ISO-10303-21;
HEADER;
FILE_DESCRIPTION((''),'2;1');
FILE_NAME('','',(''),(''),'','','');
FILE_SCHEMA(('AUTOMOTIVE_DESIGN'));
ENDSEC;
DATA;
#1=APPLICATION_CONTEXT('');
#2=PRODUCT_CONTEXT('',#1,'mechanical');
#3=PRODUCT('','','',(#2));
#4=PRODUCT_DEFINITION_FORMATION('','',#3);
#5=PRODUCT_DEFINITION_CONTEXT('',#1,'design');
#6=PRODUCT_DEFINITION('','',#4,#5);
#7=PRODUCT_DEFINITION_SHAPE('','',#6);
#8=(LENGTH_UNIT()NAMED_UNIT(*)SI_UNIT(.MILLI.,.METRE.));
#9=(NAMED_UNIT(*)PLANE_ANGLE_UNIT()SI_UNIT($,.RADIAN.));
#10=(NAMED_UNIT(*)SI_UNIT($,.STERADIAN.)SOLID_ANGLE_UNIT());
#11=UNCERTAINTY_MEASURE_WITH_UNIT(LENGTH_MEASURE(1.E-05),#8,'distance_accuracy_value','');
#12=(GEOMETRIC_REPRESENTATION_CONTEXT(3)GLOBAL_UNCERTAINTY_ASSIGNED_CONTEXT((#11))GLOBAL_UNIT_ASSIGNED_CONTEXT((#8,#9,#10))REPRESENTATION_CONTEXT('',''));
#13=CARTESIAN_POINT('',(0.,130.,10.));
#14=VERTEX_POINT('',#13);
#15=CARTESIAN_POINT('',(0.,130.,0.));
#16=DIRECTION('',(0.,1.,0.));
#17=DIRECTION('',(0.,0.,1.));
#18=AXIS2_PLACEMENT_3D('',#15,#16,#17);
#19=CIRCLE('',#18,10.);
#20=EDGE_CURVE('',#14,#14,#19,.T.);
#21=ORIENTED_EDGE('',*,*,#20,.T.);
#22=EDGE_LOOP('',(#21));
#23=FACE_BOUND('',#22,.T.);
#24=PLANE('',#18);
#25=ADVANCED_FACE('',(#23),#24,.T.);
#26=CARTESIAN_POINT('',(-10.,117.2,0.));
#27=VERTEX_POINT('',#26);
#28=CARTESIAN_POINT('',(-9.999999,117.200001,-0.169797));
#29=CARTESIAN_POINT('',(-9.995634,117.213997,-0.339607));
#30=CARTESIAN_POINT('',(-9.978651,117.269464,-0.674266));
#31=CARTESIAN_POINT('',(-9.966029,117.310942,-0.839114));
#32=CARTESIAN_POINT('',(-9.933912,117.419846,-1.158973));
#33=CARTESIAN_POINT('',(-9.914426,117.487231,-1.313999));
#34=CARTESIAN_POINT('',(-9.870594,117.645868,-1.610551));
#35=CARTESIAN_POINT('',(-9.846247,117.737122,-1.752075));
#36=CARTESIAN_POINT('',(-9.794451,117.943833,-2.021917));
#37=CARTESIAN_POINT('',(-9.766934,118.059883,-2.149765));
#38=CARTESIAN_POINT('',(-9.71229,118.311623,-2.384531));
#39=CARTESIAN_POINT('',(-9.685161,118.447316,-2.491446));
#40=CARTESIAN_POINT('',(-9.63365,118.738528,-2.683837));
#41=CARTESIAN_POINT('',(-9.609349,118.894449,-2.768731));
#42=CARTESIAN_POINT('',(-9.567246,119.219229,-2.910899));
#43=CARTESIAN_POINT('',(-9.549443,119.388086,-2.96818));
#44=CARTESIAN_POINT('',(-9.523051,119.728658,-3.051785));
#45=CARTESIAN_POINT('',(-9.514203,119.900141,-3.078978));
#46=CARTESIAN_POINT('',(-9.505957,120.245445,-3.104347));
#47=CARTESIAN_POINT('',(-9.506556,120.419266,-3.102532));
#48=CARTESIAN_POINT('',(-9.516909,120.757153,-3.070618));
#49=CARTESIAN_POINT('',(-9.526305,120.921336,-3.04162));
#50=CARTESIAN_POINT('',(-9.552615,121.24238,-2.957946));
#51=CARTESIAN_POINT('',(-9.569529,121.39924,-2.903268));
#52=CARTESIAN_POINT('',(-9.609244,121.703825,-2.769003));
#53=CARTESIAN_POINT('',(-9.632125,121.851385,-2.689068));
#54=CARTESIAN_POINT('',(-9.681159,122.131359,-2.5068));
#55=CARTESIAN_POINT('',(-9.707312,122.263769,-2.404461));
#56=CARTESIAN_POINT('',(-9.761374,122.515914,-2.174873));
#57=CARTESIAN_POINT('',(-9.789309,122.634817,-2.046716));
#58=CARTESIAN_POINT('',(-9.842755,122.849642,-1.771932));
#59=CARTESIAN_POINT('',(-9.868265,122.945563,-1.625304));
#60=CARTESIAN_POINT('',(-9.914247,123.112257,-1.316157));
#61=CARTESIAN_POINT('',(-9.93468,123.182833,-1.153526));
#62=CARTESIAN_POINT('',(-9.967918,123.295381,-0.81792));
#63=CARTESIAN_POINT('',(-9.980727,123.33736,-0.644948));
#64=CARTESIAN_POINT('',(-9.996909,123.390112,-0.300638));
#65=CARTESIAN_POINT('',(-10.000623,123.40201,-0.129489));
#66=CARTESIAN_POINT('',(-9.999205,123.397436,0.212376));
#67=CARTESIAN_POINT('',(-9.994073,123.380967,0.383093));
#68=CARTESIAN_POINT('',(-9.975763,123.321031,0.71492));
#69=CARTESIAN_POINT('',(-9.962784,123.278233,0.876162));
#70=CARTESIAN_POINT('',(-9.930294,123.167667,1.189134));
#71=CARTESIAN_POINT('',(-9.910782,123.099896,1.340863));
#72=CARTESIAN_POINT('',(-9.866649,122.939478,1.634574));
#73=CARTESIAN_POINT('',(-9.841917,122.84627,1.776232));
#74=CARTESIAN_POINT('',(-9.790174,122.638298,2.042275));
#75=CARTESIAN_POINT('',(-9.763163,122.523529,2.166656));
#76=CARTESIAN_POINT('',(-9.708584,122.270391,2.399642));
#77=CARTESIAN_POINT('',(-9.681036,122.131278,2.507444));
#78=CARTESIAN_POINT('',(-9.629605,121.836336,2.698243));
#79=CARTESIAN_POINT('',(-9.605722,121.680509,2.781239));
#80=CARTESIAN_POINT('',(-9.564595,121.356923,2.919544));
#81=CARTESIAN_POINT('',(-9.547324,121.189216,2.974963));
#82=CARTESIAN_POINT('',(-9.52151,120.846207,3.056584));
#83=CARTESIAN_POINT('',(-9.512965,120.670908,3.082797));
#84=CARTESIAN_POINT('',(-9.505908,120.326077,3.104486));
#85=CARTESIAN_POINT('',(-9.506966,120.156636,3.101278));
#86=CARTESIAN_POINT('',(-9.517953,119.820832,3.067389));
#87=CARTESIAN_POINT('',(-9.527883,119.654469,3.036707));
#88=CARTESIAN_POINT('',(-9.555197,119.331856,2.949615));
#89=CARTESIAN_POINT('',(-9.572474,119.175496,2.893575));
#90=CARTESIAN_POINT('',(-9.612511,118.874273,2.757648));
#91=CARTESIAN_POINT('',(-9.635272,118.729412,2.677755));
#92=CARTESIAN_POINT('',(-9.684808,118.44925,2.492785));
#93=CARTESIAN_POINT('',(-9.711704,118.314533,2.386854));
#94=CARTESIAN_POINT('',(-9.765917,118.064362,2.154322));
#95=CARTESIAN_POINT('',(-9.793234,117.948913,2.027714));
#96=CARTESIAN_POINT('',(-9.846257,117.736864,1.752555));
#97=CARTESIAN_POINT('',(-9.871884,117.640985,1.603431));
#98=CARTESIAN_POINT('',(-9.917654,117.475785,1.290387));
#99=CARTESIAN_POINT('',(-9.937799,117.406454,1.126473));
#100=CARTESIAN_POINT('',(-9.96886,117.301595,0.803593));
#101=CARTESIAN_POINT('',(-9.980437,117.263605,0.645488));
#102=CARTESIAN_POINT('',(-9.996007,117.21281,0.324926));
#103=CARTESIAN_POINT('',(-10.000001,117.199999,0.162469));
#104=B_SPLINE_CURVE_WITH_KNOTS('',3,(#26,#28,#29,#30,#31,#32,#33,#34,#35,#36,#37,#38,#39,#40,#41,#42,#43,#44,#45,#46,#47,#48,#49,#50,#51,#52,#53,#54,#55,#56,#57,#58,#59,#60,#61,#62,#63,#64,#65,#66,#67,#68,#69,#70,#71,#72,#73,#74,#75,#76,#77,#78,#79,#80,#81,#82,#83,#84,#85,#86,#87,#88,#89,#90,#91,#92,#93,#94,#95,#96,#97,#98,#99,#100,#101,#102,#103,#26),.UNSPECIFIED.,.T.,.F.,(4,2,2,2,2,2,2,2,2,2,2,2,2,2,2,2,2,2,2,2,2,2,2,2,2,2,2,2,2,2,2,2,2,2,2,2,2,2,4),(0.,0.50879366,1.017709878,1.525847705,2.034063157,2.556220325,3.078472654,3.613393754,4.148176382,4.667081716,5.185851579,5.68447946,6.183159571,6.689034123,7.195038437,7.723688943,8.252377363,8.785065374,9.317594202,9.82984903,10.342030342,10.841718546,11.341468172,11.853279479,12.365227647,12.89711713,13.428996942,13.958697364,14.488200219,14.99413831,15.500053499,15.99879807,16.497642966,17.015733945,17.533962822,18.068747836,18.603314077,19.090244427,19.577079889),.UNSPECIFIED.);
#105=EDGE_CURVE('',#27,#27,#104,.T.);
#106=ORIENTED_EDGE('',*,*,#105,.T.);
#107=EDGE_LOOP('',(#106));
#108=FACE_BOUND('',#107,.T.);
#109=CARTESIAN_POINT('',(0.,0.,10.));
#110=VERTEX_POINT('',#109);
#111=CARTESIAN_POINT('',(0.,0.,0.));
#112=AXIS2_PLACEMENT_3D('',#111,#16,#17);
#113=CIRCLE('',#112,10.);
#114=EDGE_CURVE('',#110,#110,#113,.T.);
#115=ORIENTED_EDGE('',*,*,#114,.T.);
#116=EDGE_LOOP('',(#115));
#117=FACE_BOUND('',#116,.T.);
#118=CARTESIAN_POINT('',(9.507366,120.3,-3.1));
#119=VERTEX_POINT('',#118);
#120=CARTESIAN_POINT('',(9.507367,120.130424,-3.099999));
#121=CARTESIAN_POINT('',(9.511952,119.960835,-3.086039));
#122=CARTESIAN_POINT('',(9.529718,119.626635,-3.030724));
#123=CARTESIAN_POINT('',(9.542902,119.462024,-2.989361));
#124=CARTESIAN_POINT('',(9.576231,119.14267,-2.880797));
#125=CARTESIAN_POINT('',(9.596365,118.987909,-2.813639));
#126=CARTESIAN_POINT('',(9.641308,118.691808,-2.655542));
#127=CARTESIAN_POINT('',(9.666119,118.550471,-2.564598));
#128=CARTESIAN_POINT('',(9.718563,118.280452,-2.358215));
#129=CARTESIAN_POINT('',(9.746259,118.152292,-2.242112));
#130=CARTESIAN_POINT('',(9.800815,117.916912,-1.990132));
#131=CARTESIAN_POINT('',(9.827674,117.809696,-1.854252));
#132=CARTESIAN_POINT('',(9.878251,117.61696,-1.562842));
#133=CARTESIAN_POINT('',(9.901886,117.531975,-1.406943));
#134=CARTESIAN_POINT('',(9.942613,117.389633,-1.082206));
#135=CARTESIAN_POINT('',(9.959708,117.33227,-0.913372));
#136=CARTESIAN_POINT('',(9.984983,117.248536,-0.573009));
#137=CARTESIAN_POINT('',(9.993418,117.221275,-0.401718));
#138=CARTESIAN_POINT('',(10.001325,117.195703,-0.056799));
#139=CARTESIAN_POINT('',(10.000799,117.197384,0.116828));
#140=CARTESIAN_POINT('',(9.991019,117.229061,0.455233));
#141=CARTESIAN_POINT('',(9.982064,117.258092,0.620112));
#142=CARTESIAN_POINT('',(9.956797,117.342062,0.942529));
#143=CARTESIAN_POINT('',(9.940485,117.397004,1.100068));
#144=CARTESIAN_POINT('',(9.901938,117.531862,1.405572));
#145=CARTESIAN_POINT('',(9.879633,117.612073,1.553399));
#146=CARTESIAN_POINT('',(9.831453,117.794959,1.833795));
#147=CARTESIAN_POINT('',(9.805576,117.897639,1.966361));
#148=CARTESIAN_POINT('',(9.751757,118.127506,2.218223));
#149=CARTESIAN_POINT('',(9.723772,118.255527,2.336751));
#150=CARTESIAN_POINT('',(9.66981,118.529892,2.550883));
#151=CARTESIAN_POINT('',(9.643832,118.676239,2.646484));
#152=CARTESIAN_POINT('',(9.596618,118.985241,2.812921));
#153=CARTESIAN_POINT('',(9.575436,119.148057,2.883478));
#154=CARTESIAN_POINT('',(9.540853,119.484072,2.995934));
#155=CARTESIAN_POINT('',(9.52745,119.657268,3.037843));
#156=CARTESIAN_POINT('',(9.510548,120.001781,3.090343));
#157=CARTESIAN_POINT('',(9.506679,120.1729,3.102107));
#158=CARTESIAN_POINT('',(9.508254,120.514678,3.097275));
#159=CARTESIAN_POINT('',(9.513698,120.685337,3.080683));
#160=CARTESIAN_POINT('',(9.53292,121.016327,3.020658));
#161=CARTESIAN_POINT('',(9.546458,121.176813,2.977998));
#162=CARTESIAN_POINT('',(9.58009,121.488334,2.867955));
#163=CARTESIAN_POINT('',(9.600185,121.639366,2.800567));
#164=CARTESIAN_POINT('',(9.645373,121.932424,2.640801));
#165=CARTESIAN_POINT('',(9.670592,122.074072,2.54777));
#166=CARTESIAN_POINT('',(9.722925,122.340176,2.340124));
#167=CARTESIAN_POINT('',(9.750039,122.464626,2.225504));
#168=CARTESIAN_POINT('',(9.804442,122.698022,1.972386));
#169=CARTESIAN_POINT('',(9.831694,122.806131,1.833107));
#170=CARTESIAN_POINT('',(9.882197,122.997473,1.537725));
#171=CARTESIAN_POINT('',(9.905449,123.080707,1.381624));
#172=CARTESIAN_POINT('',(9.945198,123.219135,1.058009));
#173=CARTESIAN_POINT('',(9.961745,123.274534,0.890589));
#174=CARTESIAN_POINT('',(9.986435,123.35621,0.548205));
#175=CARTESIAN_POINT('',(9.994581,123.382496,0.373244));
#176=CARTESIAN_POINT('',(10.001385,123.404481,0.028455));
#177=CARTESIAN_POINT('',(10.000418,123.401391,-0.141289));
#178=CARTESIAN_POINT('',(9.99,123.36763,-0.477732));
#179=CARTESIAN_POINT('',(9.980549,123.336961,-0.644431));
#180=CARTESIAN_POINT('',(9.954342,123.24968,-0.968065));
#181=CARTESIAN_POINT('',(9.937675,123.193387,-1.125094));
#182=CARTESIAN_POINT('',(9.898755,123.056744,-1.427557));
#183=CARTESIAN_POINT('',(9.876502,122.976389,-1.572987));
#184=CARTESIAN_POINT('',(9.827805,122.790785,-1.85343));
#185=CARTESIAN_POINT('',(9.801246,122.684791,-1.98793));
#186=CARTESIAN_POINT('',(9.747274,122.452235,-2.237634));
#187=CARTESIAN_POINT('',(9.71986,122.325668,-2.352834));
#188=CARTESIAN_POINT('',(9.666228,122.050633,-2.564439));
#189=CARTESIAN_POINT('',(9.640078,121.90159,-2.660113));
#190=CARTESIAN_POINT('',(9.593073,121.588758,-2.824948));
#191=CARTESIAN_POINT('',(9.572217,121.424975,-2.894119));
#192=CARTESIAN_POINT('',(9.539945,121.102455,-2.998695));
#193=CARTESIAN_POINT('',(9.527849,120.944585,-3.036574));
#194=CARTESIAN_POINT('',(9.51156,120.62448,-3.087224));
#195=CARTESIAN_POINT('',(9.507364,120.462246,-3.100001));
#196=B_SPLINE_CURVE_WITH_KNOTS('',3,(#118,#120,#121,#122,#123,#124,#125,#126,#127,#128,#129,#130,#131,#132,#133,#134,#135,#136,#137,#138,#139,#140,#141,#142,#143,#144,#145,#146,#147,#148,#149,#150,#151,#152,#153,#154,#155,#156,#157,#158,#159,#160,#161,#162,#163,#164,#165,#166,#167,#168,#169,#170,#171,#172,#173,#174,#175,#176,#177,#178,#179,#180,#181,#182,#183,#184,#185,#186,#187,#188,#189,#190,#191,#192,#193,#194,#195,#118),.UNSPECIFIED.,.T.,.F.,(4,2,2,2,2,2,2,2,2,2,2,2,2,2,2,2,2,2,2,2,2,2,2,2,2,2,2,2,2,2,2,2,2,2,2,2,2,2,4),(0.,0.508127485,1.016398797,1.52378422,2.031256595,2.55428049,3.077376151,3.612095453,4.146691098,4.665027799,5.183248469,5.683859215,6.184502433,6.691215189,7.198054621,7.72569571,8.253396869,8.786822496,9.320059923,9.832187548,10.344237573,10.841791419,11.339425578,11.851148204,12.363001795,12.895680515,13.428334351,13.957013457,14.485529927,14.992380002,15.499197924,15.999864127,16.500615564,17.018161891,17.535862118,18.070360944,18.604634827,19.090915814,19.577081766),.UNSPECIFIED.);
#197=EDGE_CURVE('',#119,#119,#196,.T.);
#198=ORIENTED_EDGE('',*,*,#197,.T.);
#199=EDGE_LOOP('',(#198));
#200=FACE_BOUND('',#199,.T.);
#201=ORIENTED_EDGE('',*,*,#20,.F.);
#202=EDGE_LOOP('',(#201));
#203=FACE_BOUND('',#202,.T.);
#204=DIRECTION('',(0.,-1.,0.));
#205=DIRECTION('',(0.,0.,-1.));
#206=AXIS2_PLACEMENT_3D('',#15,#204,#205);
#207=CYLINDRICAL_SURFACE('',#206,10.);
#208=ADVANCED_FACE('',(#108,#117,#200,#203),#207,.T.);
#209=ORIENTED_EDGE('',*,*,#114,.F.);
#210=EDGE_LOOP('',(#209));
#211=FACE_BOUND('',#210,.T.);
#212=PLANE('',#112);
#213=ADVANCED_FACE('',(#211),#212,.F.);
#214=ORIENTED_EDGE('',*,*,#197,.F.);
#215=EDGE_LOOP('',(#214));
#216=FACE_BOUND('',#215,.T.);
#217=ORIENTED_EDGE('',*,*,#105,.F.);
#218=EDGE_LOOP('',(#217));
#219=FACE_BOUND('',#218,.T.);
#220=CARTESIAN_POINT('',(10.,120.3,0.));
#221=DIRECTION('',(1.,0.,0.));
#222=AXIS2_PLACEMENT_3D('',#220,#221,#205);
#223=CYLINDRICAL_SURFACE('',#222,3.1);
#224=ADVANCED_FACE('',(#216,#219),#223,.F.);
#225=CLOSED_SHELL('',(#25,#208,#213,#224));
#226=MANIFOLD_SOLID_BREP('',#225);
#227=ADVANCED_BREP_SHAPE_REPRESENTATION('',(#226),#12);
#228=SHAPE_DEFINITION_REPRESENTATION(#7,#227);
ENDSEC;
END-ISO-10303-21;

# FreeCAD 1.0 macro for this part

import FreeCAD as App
import Part
import Sketcher

doc = App.newDocument("Part")
body = doc.addObject("PartDesign::Body", "Body")

# Sketch on XZ plane
sketch1 = body.newObject("Sketcher::SketchObject", "Sketch")
sketch1.AttachmentSupport = (doc.getObject("XZ_Plane"), [""])
sketch1.MapMode = "FlatFace"
sketch1.addGeometry(Part.Circle(App.Vector(0, 0, 0), App.Vector(0, 0, 1), 10), False)
sketch1.addConstraint([
    Sketcher.Constraint("Coincident", 0, 3, -1, 1),
    Sketcher.Constraint("Diameter", 0, 20.0),
])
pad1 = body.newObject("PartDesign::Pad", "Pad")
pad1.Profile = sketch1
pad1.Length = 130
pad1.Reversed = True

# Sketch on YZ plane
sketch2 = body.newObject("Sketcher::SketchObject", "Sketch001")
sketch2.AttachmentSupport = (doc.getObject("YZ_Plane"), [""])
sketch2.MapMode = "FlatFace"
sketch2.AttachmentOffset = App.Placement(App.Vector(0, 0, 10), App.Rotation())
sketch2.addGeometry(Part.Circle(App.Vector(120.3, 0, 0), App.Vector(0, 0, 1), 3.1), False)
sketch2.addConstraint([
    Sketcher.Constraint("PointOnObject", 0, 3, -1),
    Sketcher.Constraint("Diameter", 0, 6.2),
    Sketcher.Constraint("DistanceX", -1, 1, 0, 3, 120.3),
])
doc.recompute()
hole = body.newObject("PartDesign::Hole", "Hole")
hole.Profile = sketch2
hole.ThreadType = "None"
hole.Diameter = 6.2
hole.DepthType = "ThroughAll"

doc.recompute()
